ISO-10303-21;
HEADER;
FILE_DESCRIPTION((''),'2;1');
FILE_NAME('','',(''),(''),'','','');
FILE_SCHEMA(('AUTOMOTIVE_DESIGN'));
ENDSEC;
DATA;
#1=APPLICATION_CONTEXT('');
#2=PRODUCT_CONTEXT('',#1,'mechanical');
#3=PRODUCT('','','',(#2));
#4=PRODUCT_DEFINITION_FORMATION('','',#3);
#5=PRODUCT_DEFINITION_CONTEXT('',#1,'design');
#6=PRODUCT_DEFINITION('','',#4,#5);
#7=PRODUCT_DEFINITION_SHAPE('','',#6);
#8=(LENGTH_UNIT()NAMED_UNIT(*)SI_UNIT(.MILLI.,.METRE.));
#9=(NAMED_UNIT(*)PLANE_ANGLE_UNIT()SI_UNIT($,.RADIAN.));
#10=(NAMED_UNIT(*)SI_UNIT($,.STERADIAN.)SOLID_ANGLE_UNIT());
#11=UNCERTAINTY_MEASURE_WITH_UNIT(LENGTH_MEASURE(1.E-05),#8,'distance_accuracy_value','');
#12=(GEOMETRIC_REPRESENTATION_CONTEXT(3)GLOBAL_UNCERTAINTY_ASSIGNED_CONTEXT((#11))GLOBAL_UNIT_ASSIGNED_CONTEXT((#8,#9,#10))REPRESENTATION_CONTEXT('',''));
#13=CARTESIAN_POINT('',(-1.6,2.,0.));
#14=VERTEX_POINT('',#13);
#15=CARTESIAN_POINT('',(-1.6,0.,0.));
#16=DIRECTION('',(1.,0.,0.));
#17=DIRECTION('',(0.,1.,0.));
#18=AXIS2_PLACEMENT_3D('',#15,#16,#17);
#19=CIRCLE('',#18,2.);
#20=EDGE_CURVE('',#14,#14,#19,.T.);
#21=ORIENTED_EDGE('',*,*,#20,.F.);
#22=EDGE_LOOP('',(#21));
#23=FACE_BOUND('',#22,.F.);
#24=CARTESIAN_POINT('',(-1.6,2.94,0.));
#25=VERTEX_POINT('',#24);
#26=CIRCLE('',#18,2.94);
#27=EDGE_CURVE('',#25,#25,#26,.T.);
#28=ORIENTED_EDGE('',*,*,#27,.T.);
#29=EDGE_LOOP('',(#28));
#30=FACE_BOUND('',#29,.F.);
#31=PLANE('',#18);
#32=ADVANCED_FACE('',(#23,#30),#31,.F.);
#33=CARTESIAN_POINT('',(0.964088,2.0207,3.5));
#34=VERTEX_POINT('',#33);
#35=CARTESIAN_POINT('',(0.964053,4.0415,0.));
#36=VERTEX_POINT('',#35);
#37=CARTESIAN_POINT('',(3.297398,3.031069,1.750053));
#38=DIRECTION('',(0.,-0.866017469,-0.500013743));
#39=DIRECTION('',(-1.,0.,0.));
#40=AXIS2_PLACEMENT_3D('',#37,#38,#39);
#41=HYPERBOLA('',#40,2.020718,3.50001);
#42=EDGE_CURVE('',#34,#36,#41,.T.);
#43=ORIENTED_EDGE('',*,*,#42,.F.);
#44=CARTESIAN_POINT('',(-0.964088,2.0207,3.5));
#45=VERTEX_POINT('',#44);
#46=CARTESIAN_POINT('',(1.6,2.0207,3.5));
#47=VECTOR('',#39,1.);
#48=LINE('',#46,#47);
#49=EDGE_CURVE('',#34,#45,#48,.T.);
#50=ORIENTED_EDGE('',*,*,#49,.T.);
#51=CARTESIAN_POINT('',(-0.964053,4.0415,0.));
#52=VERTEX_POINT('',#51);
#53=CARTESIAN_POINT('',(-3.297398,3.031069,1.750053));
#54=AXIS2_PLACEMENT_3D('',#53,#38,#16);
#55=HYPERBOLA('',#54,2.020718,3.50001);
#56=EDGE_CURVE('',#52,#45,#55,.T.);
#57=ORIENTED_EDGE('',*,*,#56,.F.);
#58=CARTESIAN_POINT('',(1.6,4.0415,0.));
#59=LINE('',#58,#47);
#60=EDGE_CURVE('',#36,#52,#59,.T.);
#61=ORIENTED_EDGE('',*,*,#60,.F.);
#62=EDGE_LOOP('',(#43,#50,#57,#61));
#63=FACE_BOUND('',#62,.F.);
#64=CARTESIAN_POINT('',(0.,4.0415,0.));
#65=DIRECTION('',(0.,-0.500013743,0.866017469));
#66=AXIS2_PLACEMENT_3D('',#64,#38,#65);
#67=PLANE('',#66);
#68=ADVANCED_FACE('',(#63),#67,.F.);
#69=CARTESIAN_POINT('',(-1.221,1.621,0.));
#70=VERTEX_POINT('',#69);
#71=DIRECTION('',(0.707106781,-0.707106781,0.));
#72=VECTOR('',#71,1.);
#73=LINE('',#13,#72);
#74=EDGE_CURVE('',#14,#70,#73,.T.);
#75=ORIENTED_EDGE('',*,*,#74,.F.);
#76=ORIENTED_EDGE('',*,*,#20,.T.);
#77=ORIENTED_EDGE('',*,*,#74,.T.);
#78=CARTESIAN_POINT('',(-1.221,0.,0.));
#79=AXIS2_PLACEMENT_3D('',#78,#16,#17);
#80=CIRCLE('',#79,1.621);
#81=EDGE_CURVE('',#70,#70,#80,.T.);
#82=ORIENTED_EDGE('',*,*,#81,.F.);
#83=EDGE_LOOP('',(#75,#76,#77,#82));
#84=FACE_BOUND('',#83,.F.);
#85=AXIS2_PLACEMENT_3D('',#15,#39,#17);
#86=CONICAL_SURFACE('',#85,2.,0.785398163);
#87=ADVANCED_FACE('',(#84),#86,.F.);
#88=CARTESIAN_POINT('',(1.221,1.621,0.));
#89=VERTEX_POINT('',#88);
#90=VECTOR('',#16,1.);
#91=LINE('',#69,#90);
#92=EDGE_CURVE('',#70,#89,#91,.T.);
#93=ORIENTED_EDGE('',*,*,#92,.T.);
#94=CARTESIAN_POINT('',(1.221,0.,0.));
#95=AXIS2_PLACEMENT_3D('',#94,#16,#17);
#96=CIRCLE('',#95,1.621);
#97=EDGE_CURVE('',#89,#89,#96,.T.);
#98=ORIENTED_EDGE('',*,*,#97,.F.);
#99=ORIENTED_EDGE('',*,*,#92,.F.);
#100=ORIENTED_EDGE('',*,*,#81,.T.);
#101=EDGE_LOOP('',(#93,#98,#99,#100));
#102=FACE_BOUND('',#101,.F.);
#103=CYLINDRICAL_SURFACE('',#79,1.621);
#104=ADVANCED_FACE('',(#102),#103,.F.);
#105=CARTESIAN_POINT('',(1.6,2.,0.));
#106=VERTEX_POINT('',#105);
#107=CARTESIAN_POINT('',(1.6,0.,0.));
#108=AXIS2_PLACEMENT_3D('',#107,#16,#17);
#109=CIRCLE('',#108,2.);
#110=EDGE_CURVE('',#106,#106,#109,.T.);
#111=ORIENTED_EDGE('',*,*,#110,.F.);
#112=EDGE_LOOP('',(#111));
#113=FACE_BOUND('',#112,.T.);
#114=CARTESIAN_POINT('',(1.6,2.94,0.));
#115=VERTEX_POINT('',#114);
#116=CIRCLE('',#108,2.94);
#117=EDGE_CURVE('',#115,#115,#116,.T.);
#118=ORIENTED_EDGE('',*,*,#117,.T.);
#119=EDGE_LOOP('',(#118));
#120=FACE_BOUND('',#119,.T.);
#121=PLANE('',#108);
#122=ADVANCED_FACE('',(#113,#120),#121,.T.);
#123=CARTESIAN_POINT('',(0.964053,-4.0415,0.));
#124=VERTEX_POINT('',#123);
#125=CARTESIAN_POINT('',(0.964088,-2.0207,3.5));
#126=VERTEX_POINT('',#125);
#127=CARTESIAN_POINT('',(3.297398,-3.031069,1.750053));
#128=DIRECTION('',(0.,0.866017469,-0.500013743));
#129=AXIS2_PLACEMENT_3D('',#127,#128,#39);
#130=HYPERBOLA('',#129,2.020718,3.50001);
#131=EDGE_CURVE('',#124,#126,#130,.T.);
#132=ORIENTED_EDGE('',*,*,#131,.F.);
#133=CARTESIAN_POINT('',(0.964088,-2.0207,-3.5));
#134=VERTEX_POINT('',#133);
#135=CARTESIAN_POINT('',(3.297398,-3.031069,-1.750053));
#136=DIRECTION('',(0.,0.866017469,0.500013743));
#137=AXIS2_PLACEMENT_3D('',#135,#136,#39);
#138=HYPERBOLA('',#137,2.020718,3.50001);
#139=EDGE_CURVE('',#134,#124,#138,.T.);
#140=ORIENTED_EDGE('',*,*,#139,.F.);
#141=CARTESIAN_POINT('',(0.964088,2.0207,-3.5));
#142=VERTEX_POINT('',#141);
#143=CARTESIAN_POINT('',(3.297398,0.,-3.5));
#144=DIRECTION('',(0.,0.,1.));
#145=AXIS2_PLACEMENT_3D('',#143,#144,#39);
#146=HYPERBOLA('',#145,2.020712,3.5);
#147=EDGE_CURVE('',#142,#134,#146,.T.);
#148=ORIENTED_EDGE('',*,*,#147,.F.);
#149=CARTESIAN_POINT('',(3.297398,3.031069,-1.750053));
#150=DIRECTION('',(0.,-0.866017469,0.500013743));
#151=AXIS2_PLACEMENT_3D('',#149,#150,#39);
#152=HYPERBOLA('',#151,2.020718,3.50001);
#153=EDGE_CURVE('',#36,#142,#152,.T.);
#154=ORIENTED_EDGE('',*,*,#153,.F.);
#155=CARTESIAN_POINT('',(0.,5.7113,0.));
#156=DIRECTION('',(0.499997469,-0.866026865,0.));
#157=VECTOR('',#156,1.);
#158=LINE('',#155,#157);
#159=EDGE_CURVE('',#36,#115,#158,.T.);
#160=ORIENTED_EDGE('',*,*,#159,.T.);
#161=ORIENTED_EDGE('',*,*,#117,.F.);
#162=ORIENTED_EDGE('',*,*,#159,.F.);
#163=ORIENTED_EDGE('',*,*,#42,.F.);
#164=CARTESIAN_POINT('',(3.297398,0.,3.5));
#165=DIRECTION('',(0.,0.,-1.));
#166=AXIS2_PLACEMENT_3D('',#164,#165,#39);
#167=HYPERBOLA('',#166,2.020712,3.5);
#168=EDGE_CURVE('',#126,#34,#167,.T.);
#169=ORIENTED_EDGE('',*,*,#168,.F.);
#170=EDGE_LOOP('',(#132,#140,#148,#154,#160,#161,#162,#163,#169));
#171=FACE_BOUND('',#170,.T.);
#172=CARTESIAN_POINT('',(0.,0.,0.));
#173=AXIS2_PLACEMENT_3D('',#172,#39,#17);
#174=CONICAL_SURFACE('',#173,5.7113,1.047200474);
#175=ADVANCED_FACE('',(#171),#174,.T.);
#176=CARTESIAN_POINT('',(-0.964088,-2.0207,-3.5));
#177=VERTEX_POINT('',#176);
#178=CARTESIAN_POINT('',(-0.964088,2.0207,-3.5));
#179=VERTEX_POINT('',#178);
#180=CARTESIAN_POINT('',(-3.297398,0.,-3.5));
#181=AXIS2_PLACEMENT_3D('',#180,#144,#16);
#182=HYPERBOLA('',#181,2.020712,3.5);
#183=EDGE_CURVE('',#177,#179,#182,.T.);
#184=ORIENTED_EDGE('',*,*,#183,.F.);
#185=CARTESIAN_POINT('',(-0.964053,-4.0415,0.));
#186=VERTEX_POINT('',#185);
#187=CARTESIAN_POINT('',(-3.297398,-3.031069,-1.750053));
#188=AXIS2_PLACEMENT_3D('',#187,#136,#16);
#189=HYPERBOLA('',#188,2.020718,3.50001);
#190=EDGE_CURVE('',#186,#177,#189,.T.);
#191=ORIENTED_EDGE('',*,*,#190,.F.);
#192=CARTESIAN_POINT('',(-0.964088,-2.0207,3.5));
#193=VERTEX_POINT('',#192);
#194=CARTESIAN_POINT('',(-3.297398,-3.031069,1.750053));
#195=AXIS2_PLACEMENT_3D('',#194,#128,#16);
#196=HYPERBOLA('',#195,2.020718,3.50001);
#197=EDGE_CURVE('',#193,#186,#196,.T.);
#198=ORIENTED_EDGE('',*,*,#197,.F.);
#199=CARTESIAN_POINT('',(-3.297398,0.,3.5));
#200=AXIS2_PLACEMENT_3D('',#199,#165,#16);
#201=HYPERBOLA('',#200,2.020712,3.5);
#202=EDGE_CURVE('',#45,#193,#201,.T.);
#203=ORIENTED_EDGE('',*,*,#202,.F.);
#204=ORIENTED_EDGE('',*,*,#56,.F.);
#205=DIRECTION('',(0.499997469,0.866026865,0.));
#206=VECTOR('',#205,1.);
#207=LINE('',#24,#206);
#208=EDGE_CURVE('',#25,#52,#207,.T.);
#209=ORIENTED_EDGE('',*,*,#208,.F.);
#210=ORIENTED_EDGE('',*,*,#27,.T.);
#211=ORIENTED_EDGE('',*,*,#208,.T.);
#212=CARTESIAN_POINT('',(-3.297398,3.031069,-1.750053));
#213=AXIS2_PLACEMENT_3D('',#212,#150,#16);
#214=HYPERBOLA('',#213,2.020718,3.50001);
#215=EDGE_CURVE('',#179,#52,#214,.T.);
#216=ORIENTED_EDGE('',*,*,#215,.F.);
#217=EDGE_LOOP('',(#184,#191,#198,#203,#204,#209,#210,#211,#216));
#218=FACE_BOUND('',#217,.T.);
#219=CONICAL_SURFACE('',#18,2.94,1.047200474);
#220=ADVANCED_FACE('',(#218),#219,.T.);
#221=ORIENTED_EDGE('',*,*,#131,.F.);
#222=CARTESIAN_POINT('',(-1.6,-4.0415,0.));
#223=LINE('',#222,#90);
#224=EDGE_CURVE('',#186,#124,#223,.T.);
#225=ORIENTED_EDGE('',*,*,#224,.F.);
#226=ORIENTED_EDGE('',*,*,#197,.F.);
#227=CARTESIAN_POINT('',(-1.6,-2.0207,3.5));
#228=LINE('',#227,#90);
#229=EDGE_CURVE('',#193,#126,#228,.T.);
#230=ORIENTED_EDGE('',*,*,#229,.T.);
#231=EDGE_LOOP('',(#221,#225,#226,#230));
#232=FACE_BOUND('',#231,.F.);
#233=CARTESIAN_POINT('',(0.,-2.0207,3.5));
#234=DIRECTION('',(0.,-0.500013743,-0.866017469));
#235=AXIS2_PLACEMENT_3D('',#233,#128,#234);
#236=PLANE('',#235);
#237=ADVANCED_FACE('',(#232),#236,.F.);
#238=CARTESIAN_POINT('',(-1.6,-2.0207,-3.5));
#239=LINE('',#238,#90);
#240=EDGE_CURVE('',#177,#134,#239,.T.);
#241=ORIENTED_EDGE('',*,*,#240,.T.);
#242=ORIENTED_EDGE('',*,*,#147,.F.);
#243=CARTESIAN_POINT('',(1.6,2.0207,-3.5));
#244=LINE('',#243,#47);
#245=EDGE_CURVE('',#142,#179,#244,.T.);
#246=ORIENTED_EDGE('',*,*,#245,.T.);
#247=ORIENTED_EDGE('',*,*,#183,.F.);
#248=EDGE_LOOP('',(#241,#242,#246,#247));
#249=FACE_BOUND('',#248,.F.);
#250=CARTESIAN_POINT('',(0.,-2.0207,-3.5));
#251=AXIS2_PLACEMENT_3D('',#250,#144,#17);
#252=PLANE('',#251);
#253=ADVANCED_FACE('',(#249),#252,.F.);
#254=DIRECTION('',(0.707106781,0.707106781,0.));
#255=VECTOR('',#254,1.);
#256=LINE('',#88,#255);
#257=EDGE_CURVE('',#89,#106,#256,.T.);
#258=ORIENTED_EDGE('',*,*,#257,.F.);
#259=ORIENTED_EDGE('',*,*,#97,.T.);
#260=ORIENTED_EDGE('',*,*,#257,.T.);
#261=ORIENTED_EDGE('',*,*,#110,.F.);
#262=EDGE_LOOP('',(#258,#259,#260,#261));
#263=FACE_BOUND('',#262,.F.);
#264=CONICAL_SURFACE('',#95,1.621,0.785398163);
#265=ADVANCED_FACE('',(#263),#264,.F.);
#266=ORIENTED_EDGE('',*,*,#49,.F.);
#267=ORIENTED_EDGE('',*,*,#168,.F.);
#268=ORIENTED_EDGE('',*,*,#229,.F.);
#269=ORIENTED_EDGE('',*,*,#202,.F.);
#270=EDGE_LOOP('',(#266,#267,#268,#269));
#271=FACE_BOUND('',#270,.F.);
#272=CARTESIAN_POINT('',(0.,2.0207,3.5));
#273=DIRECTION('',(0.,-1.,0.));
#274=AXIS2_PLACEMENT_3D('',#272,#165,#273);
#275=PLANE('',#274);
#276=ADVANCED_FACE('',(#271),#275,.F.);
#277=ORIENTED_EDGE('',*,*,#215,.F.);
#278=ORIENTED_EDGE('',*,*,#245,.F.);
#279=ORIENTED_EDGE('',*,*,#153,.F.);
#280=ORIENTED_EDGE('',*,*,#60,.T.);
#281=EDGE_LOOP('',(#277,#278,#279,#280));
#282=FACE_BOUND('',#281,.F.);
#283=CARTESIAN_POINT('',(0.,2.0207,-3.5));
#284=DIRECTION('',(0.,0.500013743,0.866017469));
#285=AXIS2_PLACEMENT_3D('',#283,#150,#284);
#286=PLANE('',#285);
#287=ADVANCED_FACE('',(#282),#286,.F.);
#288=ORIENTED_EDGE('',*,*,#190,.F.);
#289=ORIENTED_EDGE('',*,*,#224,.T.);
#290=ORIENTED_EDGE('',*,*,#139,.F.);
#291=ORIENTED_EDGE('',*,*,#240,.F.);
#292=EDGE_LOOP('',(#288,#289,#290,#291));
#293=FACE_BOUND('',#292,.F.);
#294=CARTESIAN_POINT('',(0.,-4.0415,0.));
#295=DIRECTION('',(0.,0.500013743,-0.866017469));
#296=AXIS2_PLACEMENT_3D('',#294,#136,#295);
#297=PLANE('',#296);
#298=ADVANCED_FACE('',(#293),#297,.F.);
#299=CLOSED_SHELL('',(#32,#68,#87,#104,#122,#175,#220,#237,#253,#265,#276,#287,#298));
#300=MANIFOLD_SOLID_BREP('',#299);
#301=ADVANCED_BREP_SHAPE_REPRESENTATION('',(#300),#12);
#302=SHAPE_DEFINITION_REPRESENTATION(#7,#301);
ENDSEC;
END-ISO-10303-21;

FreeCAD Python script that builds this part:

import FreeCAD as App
import Part
import Sketcher
Q = App.Units.Quantity


def add_polygon(sketch, points):
    """Adds a closed chain of lines whose ends are joined by coincident constraints."""
    first, n = sketch.GeometryCount, len(points)
    for a, b in zip(points, points[1:] + points[:1]):
        sketch.addGeometry(Part.LineSegment(App.Vector(*a, 0), App.Vector(*b, 0)), False)
    for i in range(n):
        sketch.addConstraint(Sketcher.Constraint("Coincident", first + i, 2, first + (i + 1) % n, 1))

doc = App.newDocument("Part")
body = doc.addObject("PartDesign::Body", "Body")

# Sketch on YZ plane
sketch1 = body.newObject("Sketcher::SketchObject", "Sketch")
sketch1.AttachmentSupport = (doc.getObject("YZ_Plane"), [""])
sketch1.MapMode = "FlatFace"
add_polygon(sketch1, [(2, 3.5), (-2, 3.5), (-4, 0), (-2, -3.5), (2, -3.5), (4, 0)])  # lines 0-5
sketch1.addConstraint(Sketcher.Constraint("Horizontal", 0))
sketch1.addConstraint(Sketcher.Constraint("Horizontal", 3))
sketch1.addConstraint(Sketcher.Constraint("Symmetric", 0, 2, 3, 2, -1, 1))
sketch1.addConstraint(Sketcher.Constraint("Symmetric", 1, 2, 4, 2, -1, 1))
sketch1.addConstraint(Sketcher.Constraint("PointOnObject", 1, 2, -1))
sketch1.addConstraint(Sketcher.Constraint("Parallel", 2, 5))
sketch1.addConstraint(Sketcher.Constraint("Vertical", 0, 2, 2, 2))
sketch1.addConstraint(Sketcher.Constraint("Angle", 1, Q("-120.001 deg")))
sketch1.addConstraint(Sketcher.Constraint("DistanceY", 2, 2, 0, 2, 7.0))
sketch1.addConstraint(Sketcher.Constraint("DistanceX", 0, 2, 0, 1, 4.0414))
pad1 = body.newObject("PartDesign::Pad", "Pad")
pad1.Profile = sketch1
pad1.Length = 3.2
pad1.Midplane = True

# Sketch on XY plane
sketch2 = body.newObject("Sketcher::SketchObject", "Sketch001")
sketch2.AttachmentSupport = (doc.getObject("XY_Plane"), [""])
sketch2.MapMode = "FlatFace"
add_polygon(sketch2, [(-1.6, 0), (1.6, 0), (1.6, 2), (1.2, 1.6), (-1.2, 1.6), (-1.6, 2)])  # lines 0-5
sketch2.addConstraint(Sketcher.Constraint("Horizontal", 0))
sketch2.addConstraint(Sketcher.Constraint("Vertical", 1))
sketch2.addConstraint(Sketcher.Constraint("Horizontal", 3))
sketch2.addConstraint(Sketcher.Constraint("Vertical", 5))
sketch2.addConstraint(Sketcher.Constraint("Symmetric", 0, 2, 5, 2, -1, 1))
sketch2.addConstraint(Sketcher.Constraint("Perpendicular", 2, 4))
sketch2.addConstraint(Sketcher.Constraint("Horizontal", 1, 2, 4, 2))
sketch2.addConstraint(Sketcher.Constraint("Equal", 2, 4))
sketch2.addConstraint(Sketcher.Constraint("DistanceY", 1, 1, 1, 2, 2.0))
sketch2.addConstraint(Sketcher.Constraint("DistanceX", 0, 1, 0, 2, 3.2))
sketch2.addConstraint(Sketcher.Constraint("DistanceX", 3, 2, 3, 1, 2.442))
groove = body.newObject("PartDesign::Groove", "Groove")
groove.Profile = sketch2
groove.ReferenceAxis = (sketch2, ["H_Axis"])
groove.Angle = 360

# Sketch on XY plane
sketch3 = body.newObject("Sketcher::SketchObject", "Sketch002")
sketch3.AttachmentSupport = (doc.getObject("XY_Plane"), [""])
sketch3.MapMode = "FlatFace"
add_polygon(sketch3, [(6.6, 6.9), (-6.6, 6.9), (-6.6, 1), (-1.6, 1), (-1.6, 2.9), (0, 5.7), (1.6, 2.9), (1.6, 1), (6.6, 1)])  # lines 0-8
sketch3.addConstraint(Sketcher.Constraint("Horizontal", 0))
sketch3.addConstraint(Sketcher.Constraint("Vertical", 1))
sketch3.addConstraint(Sketcher.Constraint("Horizontal", 2))
sketch3.addConstraint(Sketcher.Constraint("Vertical", 3))
sketch3.addConstraint(Sketcher.Constraint("Vertical", 6))
sketch3.addConstraint(Sketcher.Constraint("Horizontal", 7))
sketch3.addConstraint(Sketcher.Constraint("Vertical", 8))
sketch3.addConstraint(Sketcher.Constraint("Symmetric", 3, 2, 5, 2, -2))
sketch3.addConstraint(Sketcher.Constraint("Symmetric", 1, 2, 7, 2, -2))
sketch3.addConstraint(Sketcher.Constraint("PointOnObject", 4, 2, -2))
sketch3.addConstraint(Sketcher.Constraint("DistanceX", 2, 1, 2, 2, 5.0))
sketch3.addConstraint(Sketcher.Constraint("Angle", 4, Q("60.0002 deg")))
sketch3.addConstraint(Sketcher.Constraint("DistanceX", 0, 2, 0, 1, 13.2))
sketch3.addConstraint(Sketcher.Constraint("DistanceY", -1, 1, 1, 2, 1.0))
sketch3.addConstraint(Sketcher.Constraint("DistanceY", 3, 2, 0, 2, 4.0))
sketch3.addConstraint(Sketcher.Constraint("DistanceY", 1, 2, 1, 1, 5.94))
groove2 = body.newObject("PartDesign::Groove", "Groove001")
groove2.Profile = sketch3
groove2.ReferenceAxis = (sketch3, ["H_Axis"])
groove2.Angle = 360

doc.recompute()
